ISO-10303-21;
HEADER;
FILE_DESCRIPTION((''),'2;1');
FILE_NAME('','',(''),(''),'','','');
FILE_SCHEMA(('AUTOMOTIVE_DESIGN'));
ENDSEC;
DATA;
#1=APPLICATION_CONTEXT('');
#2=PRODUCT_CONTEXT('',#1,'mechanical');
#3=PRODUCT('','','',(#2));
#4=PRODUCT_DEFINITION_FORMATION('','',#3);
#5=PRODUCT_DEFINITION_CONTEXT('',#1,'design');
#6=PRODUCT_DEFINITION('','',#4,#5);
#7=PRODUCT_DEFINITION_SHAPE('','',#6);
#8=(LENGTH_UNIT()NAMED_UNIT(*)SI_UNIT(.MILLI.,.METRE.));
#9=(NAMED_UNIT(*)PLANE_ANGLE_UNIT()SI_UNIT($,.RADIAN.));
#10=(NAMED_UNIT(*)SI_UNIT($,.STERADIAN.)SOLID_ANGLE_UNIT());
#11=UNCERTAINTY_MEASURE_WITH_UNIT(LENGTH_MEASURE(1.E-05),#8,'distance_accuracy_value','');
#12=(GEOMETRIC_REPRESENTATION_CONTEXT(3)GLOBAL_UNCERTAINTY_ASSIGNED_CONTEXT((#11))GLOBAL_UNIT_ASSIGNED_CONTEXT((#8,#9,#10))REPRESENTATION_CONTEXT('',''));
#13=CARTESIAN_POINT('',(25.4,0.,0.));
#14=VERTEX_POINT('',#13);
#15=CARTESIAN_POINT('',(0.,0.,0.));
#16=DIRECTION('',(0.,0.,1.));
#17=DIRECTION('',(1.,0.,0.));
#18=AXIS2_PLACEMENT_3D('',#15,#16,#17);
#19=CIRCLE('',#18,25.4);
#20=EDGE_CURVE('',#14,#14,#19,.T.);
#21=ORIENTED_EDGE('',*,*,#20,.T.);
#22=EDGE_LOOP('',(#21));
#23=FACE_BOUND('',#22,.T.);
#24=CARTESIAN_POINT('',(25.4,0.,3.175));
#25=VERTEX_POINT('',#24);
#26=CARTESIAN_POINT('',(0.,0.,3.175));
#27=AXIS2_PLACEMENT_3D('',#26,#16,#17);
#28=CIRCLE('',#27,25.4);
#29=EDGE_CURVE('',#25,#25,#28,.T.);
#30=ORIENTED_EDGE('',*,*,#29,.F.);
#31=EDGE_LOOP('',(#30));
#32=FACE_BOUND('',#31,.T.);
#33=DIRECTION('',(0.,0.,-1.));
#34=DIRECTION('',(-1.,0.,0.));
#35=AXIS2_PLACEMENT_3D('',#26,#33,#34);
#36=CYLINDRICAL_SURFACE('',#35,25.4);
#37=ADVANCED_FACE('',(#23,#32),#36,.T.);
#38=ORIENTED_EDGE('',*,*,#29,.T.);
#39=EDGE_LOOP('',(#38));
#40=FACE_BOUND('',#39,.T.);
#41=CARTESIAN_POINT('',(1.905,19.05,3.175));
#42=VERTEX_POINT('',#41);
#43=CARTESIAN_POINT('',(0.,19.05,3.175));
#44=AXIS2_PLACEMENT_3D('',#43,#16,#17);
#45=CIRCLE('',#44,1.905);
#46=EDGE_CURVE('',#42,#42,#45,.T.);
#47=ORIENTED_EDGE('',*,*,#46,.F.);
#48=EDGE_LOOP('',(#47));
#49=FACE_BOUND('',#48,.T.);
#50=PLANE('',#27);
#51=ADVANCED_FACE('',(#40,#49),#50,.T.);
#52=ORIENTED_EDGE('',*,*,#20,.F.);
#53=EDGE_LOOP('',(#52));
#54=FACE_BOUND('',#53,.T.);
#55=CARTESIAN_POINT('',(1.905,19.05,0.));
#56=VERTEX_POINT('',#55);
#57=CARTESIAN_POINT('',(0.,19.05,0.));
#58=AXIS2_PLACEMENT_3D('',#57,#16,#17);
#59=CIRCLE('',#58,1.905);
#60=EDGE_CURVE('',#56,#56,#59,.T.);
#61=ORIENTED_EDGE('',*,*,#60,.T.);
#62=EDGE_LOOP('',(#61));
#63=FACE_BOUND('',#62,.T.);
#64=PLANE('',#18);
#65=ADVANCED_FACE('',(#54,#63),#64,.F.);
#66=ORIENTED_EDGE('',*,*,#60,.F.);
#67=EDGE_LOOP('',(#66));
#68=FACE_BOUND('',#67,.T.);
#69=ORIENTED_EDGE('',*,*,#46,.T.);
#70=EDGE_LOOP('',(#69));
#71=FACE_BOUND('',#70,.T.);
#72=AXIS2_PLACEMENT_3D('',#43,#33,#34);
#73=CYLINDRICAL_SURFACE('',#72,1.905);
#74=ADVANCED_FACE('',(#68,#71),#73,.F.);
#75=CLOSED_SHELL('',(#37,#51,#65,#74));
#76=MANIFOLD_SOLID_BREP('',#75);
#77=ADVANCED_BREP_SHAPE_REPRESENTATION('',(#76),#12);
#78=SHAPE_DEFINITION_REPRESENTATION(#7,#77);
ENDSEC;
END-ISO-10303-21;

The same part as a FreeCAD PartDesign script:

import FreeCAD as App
import Part
import Sketcher

V = App.Vector
Q = App.Units.Quantity

doc = App.newDocument("Part")
body = doc.addObject("PartDesign::Body", "Body")

# Sketch on XY plane
sketch1 = doc.addObject("Sketcher::SketchObject", "Sketch")
body.addObject(sketch1)
sketch1.AttachmentSupport = (doc.XY_Plane, [""])
sketch1.MapMode = "FlatFace"
sketch1.addGeometry(Part.Circle(V(0, 0, 0), V(0, 0, 1), 25.4), False)
sketch1.addGeometry(Part.Circle(V(0, 19.1, 0), V(0, 0, 1), 1.9), False)
sketch1.addConstraint(Sketcher.Constraint("Coincident", 0, 3, -1, 1))
sketch1.addConstraint(Sketcher.Constraint("PointOnObject", 1, 3, -2))
sketch1.addConstraint(Sketcher.Constraint("Diameter", 0, Q("2 in")))
sketch1.addConstraint(Sketcher.Constraint("Diameter", 1, Q("0.15 in")))
sketch1.addConstraint(Sketcher.Constraint("DistanceY", -1, 1, 1, 3, Q("0.75 in")))
pad1 = doc.addObject("PartDesign::Pad", "Pad")
body.addObject(pad1)
pad1.Profile = sketch1
pad1.Length = Q("0.125 in")

doc.recompute()
